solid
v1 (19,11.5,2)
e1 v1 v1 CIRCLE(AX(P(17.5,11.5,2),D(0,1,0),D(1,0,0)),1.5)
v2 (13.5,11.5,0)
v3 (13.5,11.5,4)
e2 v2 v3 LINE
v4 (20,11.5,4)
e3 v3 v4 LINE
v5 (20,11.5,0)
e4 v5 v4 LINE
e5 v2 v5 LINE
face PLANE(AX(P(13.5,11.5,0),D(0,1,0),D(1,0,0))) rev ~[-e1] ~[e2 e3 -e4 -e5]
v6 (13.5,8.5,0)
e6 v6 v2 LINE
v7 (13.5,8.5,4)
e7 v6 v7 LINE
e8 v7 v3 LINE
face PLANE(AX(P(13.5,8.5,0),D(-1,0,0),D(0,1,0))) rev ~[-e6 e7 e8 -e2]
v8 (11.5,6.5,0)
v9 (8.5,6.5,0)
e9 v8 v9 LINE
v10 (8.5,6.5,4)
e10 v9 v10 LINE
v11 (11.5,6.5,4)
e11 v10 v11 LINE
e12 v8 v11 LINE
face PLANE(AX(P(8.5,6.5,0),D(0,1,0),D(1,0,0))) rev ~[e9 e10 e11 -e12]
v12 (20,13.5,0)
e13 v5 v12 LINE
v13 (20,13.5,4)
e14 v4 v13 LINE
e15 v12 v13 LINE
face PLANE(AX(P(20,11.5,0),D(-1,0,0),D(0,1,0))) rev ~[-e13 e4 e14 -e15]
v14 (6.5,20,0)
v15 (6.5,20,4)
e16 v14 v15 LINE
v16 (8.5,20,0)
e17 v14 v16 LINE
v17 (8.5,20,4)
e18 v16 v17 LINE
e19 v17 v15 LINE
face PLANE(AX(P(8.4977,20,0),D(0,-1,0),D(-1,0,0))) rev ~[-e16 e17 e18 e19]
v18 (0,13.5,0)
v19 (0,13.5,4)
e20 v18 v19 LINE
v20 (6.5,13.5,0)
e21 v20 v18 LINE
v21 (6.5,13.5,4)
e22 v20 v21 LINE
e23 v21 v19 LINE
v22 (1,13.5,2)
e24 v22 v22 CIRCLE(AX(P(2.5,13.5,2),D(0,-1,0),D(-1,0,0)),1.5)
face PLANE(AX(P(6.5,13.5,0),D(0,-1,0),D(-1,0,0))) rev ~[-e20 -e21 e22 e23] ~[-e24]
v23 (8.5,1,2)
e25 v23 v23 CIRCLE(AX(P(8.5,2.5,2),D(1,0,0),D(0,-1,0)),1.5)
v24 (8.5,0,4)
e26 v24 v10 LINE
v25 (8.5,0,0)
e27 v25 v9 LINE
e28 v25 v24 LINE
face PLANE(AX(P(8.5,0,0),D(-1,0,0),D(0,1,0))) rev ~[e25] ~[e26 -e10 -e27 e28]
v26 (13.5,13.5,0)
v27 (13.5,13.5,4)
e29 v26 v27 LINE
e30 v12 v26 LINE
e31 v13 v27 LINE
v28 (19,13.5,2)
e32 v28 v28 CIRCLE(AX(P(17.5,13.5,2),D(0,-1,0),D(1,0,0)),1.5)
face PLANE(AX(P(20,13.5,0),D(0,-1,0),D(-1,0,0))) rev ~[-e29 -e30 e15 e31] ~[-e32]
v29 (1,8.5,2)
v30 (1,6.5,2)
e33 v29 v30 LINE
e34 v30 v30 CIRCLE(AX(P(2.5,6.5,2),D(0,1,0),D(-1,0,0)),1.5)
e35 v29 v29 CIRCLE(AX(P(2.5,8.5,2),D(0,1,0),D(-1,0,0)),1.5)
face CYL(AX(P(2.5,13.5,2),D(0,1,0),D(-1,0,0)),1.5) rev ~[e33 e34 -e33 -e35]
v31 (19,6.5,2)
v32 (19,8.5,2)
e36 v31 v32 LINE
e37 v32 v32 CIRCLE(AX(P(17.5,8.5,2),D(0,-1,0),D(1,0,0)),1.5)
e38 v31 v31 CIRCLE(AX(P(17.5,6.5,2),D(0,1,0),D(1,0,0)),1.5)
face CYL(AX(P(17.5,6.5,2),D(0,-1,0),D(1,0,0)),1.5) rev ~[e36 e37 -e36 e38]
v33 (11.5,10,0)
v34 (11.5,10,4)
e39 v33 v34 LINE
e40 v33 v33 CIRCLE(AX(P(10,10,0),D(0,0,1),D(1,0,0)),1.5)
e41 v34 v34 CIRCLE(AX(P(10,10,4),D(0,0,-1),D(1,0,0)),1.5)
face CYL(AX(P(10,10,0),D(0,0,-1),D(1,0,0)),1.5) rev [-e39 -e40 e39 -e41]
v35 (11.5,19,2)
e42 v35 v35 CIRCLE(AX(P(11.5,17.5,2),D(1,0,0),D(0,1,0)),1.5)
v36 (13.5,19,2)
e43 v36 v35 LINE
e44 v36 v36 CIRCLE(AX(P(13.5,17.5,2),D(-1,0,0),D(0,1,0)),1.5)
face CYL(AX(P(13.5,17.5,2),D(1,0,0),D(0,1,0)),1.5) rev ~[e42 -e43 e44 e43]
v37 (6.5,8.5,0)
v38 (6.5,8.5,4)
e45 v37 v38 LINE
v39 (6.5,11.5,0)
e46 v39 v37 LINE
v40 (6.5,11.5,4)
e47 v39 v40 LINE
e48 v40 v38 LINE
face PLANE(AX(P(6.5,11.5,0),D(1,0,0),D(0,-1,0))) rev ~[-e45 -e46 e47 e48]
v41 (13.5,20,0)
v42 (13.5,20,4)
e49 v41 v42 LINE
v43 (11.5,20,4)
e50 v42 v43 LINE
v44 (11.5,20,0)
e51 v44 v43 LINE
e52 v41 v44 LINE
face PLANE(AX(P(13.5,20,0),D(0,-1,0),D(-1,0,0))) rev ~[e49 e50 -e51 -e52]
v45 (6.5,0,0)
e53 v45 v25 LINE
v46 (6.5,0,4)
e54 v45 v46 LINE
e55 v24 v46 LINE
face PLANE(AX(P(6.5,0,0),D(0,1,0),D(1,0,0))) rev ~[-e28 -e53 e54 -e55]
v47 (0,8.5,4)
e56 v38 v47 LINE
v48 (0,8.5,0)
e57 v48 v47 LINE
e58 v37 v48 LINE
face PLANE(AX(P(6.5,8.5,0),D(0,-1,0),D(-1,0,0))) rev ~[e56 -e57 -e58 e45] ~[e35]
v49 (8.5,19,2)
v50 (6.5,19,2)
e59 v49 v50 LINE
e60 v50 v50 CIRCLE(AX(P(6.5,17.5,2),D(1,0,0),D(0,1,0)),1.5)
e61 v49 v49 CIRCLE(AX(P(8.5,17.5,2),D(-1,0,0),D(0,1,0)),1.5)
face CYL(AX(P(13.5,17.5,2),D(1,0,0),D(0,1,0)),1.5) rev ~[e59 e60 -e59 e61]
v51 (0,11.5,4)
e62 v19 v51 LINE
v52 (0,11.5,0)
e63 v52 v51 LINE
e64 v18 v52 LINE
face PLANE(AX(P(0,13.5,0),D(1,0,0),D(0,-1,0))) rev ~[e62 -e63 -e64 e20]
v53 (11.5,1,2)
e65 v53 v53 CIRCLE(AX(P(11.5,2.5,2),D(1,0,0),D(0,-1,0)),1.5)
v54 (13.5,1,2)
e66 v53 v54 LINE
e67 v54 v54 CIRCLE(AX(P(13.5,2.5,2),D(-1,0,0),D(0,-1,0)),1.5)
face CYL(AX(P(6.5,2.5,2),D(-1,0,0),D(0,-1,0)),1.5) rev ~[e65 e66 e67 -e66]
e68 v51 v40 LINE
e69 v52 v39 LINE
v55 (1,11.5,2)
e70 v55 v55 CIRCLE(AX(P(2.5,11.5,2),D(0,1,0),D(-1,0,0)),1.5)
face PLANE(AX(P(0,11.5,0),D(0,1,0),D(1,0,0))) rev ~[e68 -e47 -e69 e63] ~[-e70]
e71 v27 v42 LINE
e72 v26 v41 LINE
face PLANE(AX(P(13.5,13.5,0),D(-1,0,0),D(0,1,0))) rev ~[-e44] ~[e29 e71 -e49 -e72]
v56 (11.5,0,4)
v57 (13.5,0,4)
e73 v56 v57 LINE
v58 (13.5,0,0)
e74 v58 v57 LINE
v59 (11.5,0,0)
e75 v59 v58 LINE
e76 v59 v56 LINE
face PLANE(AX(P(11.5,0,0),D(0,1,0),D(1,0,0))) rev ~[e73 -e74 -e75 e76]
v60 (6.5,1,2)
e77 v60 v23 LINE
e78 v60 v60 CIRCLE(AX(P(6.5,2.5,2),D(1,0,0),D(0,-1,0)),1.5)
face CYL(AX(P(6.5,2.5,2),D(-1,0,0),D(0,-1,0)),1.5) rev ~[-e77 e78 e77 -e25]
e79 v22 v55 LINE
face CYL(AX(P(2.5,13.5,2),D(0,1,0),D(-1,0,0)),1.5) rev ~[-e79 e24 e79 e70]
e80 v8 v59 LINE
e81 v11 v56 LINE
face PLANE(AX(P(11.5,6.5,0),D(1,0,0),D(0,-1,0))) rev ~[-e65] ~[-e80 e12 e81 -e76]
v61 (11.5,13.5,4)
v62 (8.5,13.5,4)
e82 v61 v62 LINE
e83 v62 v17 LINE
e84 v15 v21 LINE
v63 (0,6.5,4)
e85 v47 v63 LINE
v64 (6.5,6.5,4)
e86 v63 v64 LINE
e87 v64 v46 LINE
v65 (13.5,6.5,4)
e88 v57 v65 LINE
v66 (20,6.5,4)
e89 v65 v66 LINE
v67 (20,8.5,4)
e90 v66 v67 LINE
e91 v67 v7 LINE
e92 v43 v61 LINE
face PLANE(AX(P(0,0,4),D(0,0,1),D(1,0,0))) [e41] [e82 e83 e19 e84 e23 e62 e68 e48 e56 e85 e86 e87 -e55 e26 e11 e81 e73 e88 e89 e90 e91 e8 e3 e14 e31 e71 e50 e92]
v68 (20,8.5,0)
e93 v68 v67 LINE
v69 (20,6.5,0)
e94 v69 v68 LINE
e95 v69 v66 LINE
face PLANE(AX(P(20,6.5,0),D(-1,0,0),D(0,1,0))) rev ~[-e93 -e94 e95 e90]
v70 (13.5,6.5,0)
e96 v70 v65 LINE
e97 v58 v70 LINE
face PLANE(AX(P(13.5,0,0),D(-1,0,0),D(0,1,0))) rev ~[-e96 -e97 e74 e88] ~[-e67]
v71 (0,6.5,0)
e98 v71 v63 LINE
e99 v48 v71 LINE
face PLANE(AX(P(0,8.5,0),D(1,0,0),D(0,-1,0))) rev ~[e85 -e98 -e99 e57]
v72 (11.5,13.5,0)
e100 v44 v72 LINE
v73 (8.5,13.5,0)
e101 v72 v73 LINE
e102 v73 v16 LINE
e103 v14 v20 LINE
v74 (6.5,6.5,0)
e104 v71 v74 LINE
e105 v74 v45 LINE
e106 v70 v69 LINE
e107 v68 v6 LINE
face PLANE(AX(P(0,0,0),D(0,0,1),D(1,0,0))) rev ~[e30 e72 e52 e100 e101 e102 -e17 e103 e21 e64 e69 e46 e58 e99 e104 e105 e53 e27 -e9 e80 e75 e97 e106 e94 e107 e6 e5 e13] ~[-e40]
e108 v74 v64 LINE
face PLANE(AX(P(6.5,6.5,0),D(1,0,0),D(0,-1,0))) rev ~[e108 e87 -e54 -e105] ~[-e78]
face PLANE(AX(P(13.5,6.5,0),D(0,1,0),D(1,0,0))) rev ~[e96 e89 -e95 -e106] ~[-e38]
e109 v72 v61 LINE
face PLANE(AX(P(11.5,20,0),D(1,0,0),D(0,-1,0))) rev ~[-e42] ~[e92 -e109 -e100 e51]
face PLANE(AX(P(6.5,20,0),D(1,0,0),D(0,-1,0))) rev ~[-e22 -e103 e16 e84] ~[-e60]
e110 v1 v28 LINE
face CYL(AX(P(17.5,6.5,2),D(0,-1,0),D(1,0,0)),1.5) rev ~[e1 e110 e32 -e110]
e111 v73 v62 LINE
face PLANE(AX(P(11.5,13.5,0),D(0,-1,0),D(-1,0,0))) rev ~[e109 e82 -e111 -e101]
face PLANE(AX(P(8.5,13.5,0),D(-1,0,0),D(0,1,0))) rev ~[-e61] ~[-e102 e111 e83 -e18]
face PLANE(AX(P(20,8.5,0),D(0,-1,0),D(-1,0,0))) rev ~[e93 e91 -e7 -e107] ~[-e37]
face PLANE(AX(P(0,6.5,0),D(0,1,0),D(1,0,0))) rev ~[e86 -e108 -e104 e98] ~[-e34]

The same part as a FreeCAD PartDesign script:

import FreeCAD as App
import Part
import Sketcher
from FreeCAD import Vector


def add_polygon(sketch, points):
    """Adds a closed chain of lines whose ends are joined by coincident constraints."""
    first, n = sketch.GeometryCount, len(points)
    for a, b in zip(points, points[1:] + points[:1]):
        sketch.addGeometry(Part.LineSegment(App.Vector(*a, 0), App.Vector(*b, 0)), False)
    for i in range(n):
        sketch.addConstraint(Sketcher.Constraint("Coincident", first + i, 2, first + (i + 1) % n, 1))

doc = App.newDocument("Part")
body = doc.addObject("PartDesign::Body", "Body")

# Sketch on XY plane
sketch1 = body.newObject("Sketcher::SketchObject", "Sketch")
sketch1.AttachmentSupport = (doc.getObject("XY_Plane"), [""])
sketch1.MapMode = "FlatFace"
add_polygon(sketch1, [(6.5, 6.5), (6.5, 0), (8.5, 0), (8.5, 6.5), (11.5, 6.5), (11.5, 0), (13.5, 0), (13.5, 6.5), (20, 6.5), (20, 8.5), (13.5, 8.5), (13.5, 11.5), (20, 11.5), (20, 13.5), (13.5, 13.5), (13.5, 20), (11.5, 20), (11.5, 13.5), (8.5, 13.5), (8.5, 20), (6.5, 20), (6.5, 13.5), (0, 13.5), (0, 11.5), (6.5, 11.5), (6.5, 8.5), (0, 8.5), (0, 6.5)])  # lines 0-27
sketch1.addGeometry(Part.Circle(Vector(10, 10, 0), Vector(0, 0, 1), 1.5), False)  # 28
sketch1.addConstraint(Sketcher.Constraint("Vertical", 0))
sketch1.addConstraint(Sketcher.Constraint("Horizontal", 1))
sketch1.addConstraint(Sketcher.Constraint("Vertical", 2))
sketch1.addConstraint(Sketcher.Constraint("Horizontal", 3))
sketch1.addConstraint(Sketcher.Constraint("Vertical", 4))
sketch1.addConstraint(Sketcher.Constraint("Horizontal", 5))
sketch1.addConstraint(Sketcher.Constraint("Vertical", 6))
sketch1.addConstraint(Sketcher.Constraint("Horizontal", 7))
sketch1.addConstraint(Sketcher.Constraint("Vertical", 8))
sketch1.addConstraint(Sketcher.Constraint("Horizontal", 9))
sketch1.addConstraint(Sketcher.Constraint("Vertical", 10))
sketch1.addConstraint(Sketcher.Constraint("Horizontal", 11))
sketch1.addConstraint(Sketcher.Constraint("Vertical", 12))
sketch1.addConstraint(Sketcher.Constraint("Horizontal", 13))
sketch1.addConstraint(Sketcher.Constraint("Vertical", 14))
sketch1.addConstraint(Sketcher.Constraint("Horizontal", 15))
sketch1.addConstraint(Sketcher.Constraint("Vertical", 16))
sketch1.addConstraint(Sketcher.Constraint("Horizontal", 17))
sketch1.addConstraint(Sketcher.Constraint("Vertical", 18))
sketch1.addConstraint(Sketcher.Constraint("Horizontal", 19))
sketch1.addConstraint(Sketcher.Constraint("Vertical", 20))
sketch1.addConstraint(Sketcher.Constraint("Horizontal", 21))
sketch1.addConstraint(Sketcher.Constraint("Vertical", 22))
sketch1.addConstraint(Sketcher.Constraint("Horizontal", 23))
sketch1.addConstraint(Sketcher.Constraint("Vertical", 24))
sketch1.addConstraint(Sketcher.Constraint("Horizontal", 25))
sketch1.addConstraint(Sketcher.Constraint("Vertical", 26))
sketch1.addConstraint(Sketcher.Constraint("Horizontal", 27))
sketch1.addConstraint(Sketcher.Constraint("PointOnObject", 0, 2, -1))
sketch1.addConstraint(Sketcher.Constraint("PointOnObject", 4, 2, -1))
sketch1.addConstraint(Sketcher.Constraint("PointOnObject", 21, 2, -2))
sketch1.addConstraint(Sketcher.Constraint("PointOnObject", 25, 2, -2))
sketch1.addConstraint(Sketcher.Constraint("Horizontal", 3, 2, 6, 2))
sketch1.addConstraint(Sketcher.Constraint("Horizontal", 13, 2, 16, 2))
sketch1.addConstraint(Sketcher.Constraint("Horizontal", 15, 2, 18, 2))
sketch1.addConstraint(Sketcher.Constraint("Horizontal", 17, 2, 20, 2))
sketch1.addConstraint(Sketcher.Constraint("Horizontal", 11, 2, 22, 2))
sketch1.addConstraint(Sketcher.Constraint("Horizontal", 9, 2, 24, 2))
sketch1.addConstraint(Sketcher.Constraint("Horizontal", 7, 2, 26, 2))
sketch1.addConstraint(Sketcher.Constraint("Vertical", 6, 2, 9, 2))
sketch1.addConstraint(Sketcher.Constraint("Vertical", 8, 2, 11, 2))
sketch1.addConstraint(Sketcher.Constraint("Vertical", 10, 2, 13, 2))
sketch1.addConstraint(Sketcher.Constraint("Vertical", 4, 2, 15, 2))
sketch1.addConstraint(Sketcher.Constraint("Vertical", 2, 2, 17, 2))
sketch1.addConstraint(Sketcher.Constraint("Vertical", 0, 2, 19, 2))
sketch1.addConstraint(Sketcher.Constraint("Vertical", 20, 2, 23, 2))
sketch1.addConstraint(Sketcher.Constraint("Equal", 1, 5))
sketch1.addConstraint(Sketcher.Constraint("Equal", 13, 21))
sketch1.addConstraint(Sketcher.Constraint("Equal", 27, 0))
sketch1.addConstraint(Sketcher.Constraint("Equal", 19, 8))
sketch1.addConstraint(Sketcher.Constraint("Equal", 17, 10))
sketch1.addConstraint(Sketcher.Constraint("Equal", 8, 12))
sketch1.addConstraint(Sketcher.Constraint("Equal", 6, 14))
sketch1.addConstraint(Sketcher.Constraint("Diameter", 28, 3.0))
sketch1.addConstraint(Sketcher.Constraint("DistanceX", 1, 1, 1, 2, 2.0))
sketch1.addConstraint(Sketcher.Constraint("DistanceX", 3, 1, 3, 2, 3.0))
sketch1.addConstraint(Sketcher.Constraint("DistanceX", -1, 1, 28, 3, 10.0))
sketch1.addConstraint(Sketcher.Constraint("DistanceY", -1, 1, 28, 3, 10.0))
sketch1.addConstraint(Sketcher.Constraint("DistanceX", -1, 1, 7, 2, 20.0))
pad1 = body.newObject("PartDesign::Pad", "Pad")
pad1.Profile = sketch1
pad1.Length = 4

# Sketch on XZ plane
sketch2 = body.newObject("Sketcher::SketchObject", "Sketch001")
sketch2.AttachmentSupport = (doc.getObject("XZ_Plane"), [""])
sketch2.MapMode = "FlatFace"
sketch2.AttachmentOffset = App.Placement(Vector(0, 0, -6.5), App.Rotation())
sketch2.addGeometry(Part.Circle(Vector(17.5, 2, 0), Vector(0, 0, 1), 1.5), False)
sketch2.addConstraint(Sketcher.Constraint("Diameter", 0, 3.0))
sketch2.addConstraint(Sketcher.Constraint("DistanceY", -1, 1, 0, 3, 2.0))
sketch2.addConstraint(Sketcher.Constraint("DistanceX", -1, 1, 0, 3, 17.5))
pocket1 = body.newObject("PartDesign::Pocket", "Pocket")
pocket1.Profile = sketch2
pocket1.Length = 10
doc.recompute()

datumline = body.newObject("PartDesign::Line", "DatumLine")
datumline.Placement = App.Placement(Vector(10, 10, 0), App.Rotation(Vector(0, 0, 1), Vector(0, 0, 1)))
polarpattern = body.newObject("PartDesign::PolarPattern", "PolarPattern")
polarpattern.Originals = [pocket1]
polarpattern.Axis = (datumline, [""])
polarpattern.Angle = 360
polarpattern.Occurrences = 4
body.Tip = polarpattern

doc.recompute()
